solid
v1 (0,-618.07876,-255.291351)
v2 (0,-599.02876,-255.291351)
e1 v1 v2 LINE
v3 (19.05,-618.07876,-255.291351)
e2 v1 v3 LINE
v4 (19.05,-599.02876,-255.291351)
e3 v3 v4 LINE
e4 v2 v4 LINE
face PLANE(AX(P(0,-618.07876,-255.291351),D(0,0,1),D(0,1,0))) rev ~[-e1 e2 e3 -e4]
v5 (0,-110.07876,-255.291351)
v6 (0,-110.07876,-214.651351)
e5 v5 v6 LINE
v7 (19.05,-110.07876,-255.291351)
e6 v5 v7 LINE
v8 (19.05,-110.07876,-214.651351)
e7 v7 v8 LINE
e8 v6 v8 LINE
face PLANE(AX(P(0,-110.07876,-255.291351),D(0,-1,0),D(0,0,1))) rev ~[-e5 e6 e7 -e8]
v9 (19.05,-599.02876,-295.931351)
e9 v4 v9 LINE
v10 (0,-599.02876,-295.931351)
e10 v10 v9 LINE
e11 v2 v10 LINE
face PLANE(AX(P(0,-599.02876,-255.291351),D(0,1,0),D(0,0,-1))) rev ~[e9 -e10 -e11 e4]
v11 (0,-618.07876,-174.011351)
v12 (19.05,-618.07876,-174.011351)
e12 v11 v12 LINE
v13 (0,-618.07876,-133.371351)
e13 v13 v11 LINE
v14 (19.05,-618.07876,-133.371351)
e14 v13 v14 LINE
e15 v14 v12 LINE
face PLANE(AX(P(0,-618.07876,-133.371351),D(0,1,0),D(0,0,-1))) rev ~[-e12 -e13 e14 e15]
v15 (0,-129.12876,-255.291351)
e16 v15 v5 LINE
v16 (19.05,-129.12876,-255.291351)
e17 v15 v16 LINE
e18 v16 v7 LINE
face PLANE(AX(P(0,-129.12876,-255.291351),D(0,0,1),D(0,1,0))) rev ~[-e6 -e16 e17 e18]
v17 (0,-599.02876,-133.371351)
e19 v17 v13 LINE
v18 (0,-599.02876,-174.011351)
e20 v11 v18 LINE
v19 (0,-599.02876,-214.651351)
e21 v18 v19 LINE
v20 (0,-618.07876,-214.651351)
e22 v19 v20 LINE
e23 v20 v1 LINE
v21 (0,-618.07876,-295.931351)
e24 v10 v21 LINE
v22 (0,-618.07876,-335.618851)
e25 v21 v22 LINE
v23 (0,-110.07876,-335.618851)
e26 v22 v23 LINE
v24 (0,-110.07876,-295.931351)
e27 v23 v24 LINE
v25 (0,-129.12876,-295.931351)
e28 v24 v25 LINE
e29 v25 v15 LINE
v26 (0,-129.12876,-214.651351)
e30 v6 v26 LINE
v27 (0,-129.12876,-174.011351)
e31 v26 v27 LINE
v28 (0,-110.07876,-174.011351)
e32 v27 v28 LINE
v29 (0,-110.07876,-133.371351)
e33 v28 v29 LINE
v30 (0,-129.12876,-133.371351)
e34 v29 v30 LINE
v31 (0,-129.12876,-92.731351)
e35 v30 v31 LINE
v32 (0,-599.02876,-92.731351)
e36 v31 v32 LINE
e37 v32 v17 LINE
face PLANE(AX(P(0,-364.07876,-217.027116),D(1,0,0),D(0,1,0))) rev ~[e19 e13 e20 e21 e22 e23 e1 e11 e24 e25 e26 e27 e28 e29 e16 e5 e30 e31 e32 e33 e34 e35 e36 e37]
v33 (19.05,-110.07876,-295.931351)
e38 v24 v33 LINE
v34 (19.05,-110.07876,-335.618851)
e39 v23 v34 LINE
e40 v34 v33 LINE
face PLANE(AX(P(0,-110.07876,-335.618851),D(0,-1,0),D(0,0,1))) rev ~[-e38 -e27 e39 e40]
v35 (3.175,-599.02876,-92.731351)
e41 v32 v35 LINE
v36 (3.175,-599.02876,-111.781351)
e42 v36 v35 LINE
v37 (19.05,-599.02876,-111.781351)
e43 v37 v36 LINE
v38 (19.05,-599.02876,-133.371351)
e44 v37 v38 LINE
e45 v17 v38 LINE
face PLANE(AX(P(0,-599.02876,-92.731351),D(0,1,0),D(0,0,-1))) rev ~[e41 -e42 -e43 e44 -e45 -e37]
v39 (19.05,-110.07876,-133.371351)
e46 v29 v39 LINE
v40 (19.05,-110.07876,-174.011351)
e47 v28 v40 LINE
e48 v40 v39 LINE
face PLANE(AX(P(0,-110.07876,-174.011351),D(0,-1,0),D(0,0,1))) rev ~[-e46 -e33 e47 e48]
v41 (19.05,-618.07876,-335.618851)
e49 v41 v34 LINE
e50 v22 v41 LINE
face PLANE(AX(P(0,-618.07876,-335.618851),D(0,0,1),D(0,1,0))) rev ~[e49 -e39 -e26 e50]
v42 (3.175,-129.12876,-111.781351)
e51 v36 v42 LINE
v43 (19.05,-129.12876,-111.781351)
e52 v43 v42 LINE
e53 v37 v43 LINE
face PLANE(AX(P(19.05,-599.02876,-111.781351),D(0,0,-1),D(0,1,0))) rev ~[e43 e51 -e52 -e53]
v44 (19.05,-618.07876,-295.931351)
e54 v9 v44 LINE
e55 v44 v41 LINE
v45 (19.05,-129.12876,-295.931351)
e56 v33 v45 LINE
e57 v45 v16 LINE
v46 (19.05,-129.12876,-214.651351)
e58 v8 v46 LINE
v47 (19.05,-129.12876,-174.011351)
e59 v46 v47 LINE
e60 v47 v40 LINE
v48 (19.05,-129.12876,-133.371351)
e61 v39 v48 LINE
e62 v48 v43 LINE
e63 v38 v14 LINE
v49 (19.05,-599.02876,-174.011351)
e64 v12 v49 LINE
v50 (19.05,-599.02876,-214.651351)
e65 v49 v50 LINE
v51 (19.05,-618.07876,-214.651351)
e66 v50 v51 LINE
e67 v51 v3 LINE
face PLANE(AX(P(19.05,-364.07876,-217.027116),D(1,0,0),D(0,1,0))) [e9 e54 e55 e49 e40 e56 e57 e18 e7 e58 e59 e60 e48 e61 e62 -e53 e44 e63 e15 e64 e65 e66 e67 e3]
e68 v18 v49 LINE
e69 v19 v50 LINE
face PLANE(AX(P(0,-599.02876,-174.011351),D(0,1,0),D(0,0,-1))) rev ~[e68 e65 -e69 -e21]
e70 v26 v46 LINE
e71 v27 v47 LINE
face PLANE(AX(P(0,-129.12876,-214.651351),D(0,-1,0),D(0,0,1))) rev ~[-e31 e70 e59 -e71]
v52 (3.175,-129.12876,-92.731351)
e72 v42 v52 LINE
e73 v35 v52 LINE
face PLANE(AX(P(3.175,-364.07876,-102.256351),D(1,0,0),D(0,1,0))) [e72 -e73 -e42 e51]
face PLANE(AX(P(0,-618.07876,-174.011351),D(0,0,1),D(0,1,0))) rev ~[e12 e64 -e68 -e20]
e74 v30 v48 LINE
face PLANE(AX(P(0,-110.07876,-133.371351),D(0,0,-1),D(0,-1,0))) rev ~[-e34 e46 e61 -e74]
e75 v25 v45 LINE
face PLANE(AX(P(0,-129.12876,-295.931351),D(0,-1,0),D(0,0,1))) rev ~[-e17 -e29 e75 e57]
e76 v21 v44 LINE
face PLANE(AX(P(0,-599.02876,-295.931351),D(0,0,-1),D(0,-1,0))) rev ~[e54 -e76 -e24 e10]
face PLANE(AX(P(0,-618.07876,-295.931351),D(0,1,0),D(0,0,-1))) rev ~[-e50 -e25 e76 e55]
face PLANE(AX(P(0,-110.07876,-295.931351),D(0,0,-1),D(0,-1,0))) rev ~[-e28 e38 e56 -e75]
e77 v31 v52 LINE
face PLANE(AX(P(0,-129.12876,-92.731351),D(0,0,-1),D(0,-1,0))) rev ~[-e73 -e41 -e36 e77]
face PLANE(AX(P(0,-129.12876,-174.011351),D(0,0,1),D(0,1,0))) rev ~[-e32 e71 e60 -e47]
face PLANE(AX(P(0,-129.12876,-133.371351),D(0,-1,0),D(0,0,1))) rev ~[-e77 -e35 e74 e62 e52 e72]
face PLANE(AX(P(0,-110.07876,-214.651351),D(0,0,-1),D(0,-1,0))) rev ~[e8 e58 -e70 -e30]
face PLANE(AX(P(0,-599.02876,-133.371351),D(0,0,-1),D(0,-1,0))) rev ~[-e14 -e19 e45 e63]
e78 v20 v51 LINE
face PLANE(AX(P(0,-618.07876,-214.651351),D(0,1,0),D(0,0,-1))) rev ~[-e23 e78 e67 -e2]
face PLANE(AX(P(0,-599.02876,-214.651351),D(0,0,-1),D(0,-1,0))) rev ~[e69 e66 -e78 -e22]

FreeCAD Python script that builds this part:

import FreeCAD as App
import Part
import Sketcher
Q = App.Units.Quantity


def add_polygon(sketch, points):
    """Adds a closed chain of lines whose ends are joined by coincident constraints."""
    first, n = sketch.GeometryCount, len(points)
    for a, b in zip(points, points[1:] + points[:1]):
        sketch.addGeometry(Part.LineSegment(App.Vector(*a, 0), App.Vector(*b, 0)), False)
    for i in range(n):
        sketch.addConstraint(Sketcher.Constraint("Coincident", first + i, 2, first + (i + 1) % n, 1))

doc = App.newDocument("Part")
params = doc.addObject("Spreadsheet::Sheet", "Params")
for row, (alias, value) in enumerate([
    ("sketch1_width", "20 in"),
    ("sketch1_width2", "18.5 in"),
    ("sketch1_height", "1.6 in"),
    ("sketch1_height2", "1.5625 in"),
    ("pad1_length", "0.75 in"),
    ("sketch2_width", "18.5 in"),
    ("sketch2_height", "0.75 in"),
    ("pocket1_length", "0.625 in"),
], start=1):
    params.set(f"A{row}", alias)
    params.set(f"B{row}", "=" + value)
    params.setAlias(f"B{row}", alias)

body = doc.addObject("PartDesign::Body", "Body")

# Sketch on YZ plane
sketch1 = body.newObject("Sketcher::SketchObject", "Sketch")
sketch1.AttachmentSupport = (doc.getObject("YZ_Plane"), [""])
sketch1.MapMode = "FlatFace"
add_polygon(sketch1, [(-599, -133), (-618, -133), (-618, -174), (-599, -174), (-599, -215), (-618, -215), (-618, -255), (-599, -255), (-599, -296), (-618, -296), (-618, -336), (-110, -336), (-110, -296), (-129, -296), (-129, -255), (-110, -255), (-110, -215), (-129, -215), (-129, -174), (-110, -174), (-110, -133), (-129, -133), (-129, -93), (-599, -93)])  # lines 0-23
sketch1.addConstraint(Sketcher.Constraint("Horizontal", 0))
sketch1.addConstraint(Sketcher.Constraint("Vertical", 1))
sketch1.addConstraint(Sketcher.Constraint("Horizontal", 2))
sketch1.addConstraint(Sketcher.Constraint("Vertical", 3))
sketch1.addConstraint(Sketcher.Constraint("Horizontal", 4))
sketch1.addConstraint(Sketcher.Constraint("Vertical", 5))
sketch1.addConstraint(Sketcher.Constraint("Horizontal", 6))
sketch1.addConstraint(Sketcher.Constraint("Vertical", 7))
sketch1.addConstraint(Sketcher.Constraint("Horizontal", 8))
sketch1.addConstraint(Sketcher.Constraint("Vertical", 9))
sketch1.addConstraint(Sketcher.Constraint("Horizontal", 10))
sketch1.addConstraint(Sketcher.Constraint("Vertical", 11))
sketch1.addConstraint(Sketcher.Constraint("Horizontal", 12))
sketch1.addConstraint(Sketcher.Constraint("Vertical", 13))
sketch1.addConstraint(Sketcher.Constraint("Horizontal", 14))
sketch1.addConstraint(Sketcher.Constraint("Vertical", 15))
sketch1.addConstraint(Sketcher.Constraint("Horizontal", 16))
sketch1.addConstraint(Sketcher.Constraint("Vertical", 17))
sketch1.addConstraint(Sketcher.Constraint("Horizontal", 18))
sketch1.addConstraint(Sketcher.Constraint("Vertical", 19))
sketch1.addConstraint(Sketcher.Constraint("Horizontal", 20))
sketch1.addConstraint(Sketcher.Constraint("Vertical", 21))
sketch1.addConstraint(Sketcher.Constraint("Horizontal", 22))
sketch1.addConstraint(Sketcher.Constraint("Vertical", 23))
sketch1.addConstraint(Sketcher.Constraint("Horizontal", 8, 2, 11, 2))
sketch1.addConstraint(Sketcher.Constraint("Horizontal", 6, 2, 13, 2))
sketch1.addConstraint(Sketcher.Constraint("Horizontal", 4, 2, 15, 2))
sketch1.addConstraint(Sketcher.Constraint("Horizontal", 2, 2, 17, 2))
sketch1.addConstraint(Sketcher.Constraint("Horizontal", 0, 2, 19, 2))
sketch1.addConstraint(Sketcher.Constraint("Vertical", 1, 2, 4, 2))
sketch1.addConstraint(Sketcher.Constraint("Vertical", 3, 2, 6, 2))
sketch1.addConstraint(Sketcher.Constraint("Vertical", 5, 2, 8, 2))
sketch1.addConstraint(Sketcher.Constraint("Vertical", 11, 2, 14, 2))
sketch1.addConstraint(Sketcher.Constraint("Vertical", 13, 2, 16, 2))
sketch1.addConstraint(Sketcher.Constraint("Vertical", 15, 2, 18, 2))
sketch1.addConstraint(Sketcher.Constraint("Vertical", 17, 2, 20, 2))
sketch1.addConstraint(Sketcher.Constraint("Vertical", 7, 2, 22, 2))
sketch1.addConstraint(Sketcher.Constraint("Equal", 8, 12))
sketch1.addConstraint(Sketcher.Constraint("Equal", 1, 3))
sketch1.addConstraint(Sketcher.Constraint("Equal", 3, 5))
sketch1.addConstraint(Sketcher.Constraint("Equal", 5, 7))
sketch1.addConstraint(Sketcher.Constraint("Equal", 19, 21))
sketch1.addConstraint(Sketcher.Constraint("DistanceX", 10, 1, 10, 2, Q("20 in")))
sketch1.addConstraint(Sketcher.Constraint("DistanceX", 22, 2, 22, 1, Q("18.5 in")))
sketch1.addConstraint(Sketcher.Constraint("DistanceY", 1, 2, 1, 1, Q("1.6 in")))
sketch1.addConstraint(Sketcher.Constraint("DistanceY", 9, 2, 9, 1, Q("1.5625 in")))
sketch1.addConstraint(Sketcher.Constraint("DistanceX", 0, 2, -1, 1, 618.07876))
sketch1.addConstraint(Sketcher.Constraint("DistanceY", 0, 2, -1, 1, 133.371351))
sketch1.setExpression("Constraints[66]", "Params.sketch1_width")
sketch1.setExpression("Constraints[67]", "Params.sketch1_width2")
sketch1.setExpression("Constraints[68]", "Params.sketch1_height")
sketch1.setExpression("Constraints[69]", "Params.sketch1_height2")
pad1 = body.newObject("PartDesign::Pad", "Pad")
pad1.Profile = sketch1
pad1.setExpression("Length", "Params.pad1_length")

# Sketch on YZ plane
sketch2 = body.newObject("Sketcher::SketchObject", "Sketch001")
sketch2.AttachmentSupport = (doc.getObject("YZ_Plane"), [""])
sketch2.MapMode = "FlatFace"
sketch2.AttachmentOffset = App.Placement(App.Vector(0, 0, 0.75 * 25.4), App.Rotation())
add_polygon(sketch2, [(-599, -93), (-599, -112), (-129, -112), (-129, -93)])  # lines 0-3
sketch2.addConstraint(Sketcher.Constraint("Vertical", 0))
sketch2.addConstraint(Sketcher.Constraint("Horizontal", 1))
sketch2.addConstraint(Sketcher.Constraint("Vertical", 2))
sketch2.addConstraint(Sketcher.Constraint("Horizontal", 3))
sketch2.addConstraint(Sketcher.Constraint("DistanceX", 1, 1, 1, 2, Q("18.5 in")))
sketch2.addConstraint(Sketcher.Constraint("DistanceY", 0, 2, 0, 1, Q("0.75 in")))
sketch2.addConstraint(Sketcher.Constraint("DistanceX", 0, 2, -1, 1, 599.02876))
sketch2.addConstraint(Sketcher.Constraint("DistanceY", 0, 2, -1, 1, 111.781351))
sketch2.setExpression("Constraints[8]", "Params.sketch2_width")
sketch2.setExpression("Constraints[9]", "Params.sketch2_height")
pocket1 = body.newObject("PartDesign::Pocket", "Pocket")
pocket1.Profile = sketch2
pocket1.setExpression("Length", "Params.pocket1_length")

doc.recompute()
